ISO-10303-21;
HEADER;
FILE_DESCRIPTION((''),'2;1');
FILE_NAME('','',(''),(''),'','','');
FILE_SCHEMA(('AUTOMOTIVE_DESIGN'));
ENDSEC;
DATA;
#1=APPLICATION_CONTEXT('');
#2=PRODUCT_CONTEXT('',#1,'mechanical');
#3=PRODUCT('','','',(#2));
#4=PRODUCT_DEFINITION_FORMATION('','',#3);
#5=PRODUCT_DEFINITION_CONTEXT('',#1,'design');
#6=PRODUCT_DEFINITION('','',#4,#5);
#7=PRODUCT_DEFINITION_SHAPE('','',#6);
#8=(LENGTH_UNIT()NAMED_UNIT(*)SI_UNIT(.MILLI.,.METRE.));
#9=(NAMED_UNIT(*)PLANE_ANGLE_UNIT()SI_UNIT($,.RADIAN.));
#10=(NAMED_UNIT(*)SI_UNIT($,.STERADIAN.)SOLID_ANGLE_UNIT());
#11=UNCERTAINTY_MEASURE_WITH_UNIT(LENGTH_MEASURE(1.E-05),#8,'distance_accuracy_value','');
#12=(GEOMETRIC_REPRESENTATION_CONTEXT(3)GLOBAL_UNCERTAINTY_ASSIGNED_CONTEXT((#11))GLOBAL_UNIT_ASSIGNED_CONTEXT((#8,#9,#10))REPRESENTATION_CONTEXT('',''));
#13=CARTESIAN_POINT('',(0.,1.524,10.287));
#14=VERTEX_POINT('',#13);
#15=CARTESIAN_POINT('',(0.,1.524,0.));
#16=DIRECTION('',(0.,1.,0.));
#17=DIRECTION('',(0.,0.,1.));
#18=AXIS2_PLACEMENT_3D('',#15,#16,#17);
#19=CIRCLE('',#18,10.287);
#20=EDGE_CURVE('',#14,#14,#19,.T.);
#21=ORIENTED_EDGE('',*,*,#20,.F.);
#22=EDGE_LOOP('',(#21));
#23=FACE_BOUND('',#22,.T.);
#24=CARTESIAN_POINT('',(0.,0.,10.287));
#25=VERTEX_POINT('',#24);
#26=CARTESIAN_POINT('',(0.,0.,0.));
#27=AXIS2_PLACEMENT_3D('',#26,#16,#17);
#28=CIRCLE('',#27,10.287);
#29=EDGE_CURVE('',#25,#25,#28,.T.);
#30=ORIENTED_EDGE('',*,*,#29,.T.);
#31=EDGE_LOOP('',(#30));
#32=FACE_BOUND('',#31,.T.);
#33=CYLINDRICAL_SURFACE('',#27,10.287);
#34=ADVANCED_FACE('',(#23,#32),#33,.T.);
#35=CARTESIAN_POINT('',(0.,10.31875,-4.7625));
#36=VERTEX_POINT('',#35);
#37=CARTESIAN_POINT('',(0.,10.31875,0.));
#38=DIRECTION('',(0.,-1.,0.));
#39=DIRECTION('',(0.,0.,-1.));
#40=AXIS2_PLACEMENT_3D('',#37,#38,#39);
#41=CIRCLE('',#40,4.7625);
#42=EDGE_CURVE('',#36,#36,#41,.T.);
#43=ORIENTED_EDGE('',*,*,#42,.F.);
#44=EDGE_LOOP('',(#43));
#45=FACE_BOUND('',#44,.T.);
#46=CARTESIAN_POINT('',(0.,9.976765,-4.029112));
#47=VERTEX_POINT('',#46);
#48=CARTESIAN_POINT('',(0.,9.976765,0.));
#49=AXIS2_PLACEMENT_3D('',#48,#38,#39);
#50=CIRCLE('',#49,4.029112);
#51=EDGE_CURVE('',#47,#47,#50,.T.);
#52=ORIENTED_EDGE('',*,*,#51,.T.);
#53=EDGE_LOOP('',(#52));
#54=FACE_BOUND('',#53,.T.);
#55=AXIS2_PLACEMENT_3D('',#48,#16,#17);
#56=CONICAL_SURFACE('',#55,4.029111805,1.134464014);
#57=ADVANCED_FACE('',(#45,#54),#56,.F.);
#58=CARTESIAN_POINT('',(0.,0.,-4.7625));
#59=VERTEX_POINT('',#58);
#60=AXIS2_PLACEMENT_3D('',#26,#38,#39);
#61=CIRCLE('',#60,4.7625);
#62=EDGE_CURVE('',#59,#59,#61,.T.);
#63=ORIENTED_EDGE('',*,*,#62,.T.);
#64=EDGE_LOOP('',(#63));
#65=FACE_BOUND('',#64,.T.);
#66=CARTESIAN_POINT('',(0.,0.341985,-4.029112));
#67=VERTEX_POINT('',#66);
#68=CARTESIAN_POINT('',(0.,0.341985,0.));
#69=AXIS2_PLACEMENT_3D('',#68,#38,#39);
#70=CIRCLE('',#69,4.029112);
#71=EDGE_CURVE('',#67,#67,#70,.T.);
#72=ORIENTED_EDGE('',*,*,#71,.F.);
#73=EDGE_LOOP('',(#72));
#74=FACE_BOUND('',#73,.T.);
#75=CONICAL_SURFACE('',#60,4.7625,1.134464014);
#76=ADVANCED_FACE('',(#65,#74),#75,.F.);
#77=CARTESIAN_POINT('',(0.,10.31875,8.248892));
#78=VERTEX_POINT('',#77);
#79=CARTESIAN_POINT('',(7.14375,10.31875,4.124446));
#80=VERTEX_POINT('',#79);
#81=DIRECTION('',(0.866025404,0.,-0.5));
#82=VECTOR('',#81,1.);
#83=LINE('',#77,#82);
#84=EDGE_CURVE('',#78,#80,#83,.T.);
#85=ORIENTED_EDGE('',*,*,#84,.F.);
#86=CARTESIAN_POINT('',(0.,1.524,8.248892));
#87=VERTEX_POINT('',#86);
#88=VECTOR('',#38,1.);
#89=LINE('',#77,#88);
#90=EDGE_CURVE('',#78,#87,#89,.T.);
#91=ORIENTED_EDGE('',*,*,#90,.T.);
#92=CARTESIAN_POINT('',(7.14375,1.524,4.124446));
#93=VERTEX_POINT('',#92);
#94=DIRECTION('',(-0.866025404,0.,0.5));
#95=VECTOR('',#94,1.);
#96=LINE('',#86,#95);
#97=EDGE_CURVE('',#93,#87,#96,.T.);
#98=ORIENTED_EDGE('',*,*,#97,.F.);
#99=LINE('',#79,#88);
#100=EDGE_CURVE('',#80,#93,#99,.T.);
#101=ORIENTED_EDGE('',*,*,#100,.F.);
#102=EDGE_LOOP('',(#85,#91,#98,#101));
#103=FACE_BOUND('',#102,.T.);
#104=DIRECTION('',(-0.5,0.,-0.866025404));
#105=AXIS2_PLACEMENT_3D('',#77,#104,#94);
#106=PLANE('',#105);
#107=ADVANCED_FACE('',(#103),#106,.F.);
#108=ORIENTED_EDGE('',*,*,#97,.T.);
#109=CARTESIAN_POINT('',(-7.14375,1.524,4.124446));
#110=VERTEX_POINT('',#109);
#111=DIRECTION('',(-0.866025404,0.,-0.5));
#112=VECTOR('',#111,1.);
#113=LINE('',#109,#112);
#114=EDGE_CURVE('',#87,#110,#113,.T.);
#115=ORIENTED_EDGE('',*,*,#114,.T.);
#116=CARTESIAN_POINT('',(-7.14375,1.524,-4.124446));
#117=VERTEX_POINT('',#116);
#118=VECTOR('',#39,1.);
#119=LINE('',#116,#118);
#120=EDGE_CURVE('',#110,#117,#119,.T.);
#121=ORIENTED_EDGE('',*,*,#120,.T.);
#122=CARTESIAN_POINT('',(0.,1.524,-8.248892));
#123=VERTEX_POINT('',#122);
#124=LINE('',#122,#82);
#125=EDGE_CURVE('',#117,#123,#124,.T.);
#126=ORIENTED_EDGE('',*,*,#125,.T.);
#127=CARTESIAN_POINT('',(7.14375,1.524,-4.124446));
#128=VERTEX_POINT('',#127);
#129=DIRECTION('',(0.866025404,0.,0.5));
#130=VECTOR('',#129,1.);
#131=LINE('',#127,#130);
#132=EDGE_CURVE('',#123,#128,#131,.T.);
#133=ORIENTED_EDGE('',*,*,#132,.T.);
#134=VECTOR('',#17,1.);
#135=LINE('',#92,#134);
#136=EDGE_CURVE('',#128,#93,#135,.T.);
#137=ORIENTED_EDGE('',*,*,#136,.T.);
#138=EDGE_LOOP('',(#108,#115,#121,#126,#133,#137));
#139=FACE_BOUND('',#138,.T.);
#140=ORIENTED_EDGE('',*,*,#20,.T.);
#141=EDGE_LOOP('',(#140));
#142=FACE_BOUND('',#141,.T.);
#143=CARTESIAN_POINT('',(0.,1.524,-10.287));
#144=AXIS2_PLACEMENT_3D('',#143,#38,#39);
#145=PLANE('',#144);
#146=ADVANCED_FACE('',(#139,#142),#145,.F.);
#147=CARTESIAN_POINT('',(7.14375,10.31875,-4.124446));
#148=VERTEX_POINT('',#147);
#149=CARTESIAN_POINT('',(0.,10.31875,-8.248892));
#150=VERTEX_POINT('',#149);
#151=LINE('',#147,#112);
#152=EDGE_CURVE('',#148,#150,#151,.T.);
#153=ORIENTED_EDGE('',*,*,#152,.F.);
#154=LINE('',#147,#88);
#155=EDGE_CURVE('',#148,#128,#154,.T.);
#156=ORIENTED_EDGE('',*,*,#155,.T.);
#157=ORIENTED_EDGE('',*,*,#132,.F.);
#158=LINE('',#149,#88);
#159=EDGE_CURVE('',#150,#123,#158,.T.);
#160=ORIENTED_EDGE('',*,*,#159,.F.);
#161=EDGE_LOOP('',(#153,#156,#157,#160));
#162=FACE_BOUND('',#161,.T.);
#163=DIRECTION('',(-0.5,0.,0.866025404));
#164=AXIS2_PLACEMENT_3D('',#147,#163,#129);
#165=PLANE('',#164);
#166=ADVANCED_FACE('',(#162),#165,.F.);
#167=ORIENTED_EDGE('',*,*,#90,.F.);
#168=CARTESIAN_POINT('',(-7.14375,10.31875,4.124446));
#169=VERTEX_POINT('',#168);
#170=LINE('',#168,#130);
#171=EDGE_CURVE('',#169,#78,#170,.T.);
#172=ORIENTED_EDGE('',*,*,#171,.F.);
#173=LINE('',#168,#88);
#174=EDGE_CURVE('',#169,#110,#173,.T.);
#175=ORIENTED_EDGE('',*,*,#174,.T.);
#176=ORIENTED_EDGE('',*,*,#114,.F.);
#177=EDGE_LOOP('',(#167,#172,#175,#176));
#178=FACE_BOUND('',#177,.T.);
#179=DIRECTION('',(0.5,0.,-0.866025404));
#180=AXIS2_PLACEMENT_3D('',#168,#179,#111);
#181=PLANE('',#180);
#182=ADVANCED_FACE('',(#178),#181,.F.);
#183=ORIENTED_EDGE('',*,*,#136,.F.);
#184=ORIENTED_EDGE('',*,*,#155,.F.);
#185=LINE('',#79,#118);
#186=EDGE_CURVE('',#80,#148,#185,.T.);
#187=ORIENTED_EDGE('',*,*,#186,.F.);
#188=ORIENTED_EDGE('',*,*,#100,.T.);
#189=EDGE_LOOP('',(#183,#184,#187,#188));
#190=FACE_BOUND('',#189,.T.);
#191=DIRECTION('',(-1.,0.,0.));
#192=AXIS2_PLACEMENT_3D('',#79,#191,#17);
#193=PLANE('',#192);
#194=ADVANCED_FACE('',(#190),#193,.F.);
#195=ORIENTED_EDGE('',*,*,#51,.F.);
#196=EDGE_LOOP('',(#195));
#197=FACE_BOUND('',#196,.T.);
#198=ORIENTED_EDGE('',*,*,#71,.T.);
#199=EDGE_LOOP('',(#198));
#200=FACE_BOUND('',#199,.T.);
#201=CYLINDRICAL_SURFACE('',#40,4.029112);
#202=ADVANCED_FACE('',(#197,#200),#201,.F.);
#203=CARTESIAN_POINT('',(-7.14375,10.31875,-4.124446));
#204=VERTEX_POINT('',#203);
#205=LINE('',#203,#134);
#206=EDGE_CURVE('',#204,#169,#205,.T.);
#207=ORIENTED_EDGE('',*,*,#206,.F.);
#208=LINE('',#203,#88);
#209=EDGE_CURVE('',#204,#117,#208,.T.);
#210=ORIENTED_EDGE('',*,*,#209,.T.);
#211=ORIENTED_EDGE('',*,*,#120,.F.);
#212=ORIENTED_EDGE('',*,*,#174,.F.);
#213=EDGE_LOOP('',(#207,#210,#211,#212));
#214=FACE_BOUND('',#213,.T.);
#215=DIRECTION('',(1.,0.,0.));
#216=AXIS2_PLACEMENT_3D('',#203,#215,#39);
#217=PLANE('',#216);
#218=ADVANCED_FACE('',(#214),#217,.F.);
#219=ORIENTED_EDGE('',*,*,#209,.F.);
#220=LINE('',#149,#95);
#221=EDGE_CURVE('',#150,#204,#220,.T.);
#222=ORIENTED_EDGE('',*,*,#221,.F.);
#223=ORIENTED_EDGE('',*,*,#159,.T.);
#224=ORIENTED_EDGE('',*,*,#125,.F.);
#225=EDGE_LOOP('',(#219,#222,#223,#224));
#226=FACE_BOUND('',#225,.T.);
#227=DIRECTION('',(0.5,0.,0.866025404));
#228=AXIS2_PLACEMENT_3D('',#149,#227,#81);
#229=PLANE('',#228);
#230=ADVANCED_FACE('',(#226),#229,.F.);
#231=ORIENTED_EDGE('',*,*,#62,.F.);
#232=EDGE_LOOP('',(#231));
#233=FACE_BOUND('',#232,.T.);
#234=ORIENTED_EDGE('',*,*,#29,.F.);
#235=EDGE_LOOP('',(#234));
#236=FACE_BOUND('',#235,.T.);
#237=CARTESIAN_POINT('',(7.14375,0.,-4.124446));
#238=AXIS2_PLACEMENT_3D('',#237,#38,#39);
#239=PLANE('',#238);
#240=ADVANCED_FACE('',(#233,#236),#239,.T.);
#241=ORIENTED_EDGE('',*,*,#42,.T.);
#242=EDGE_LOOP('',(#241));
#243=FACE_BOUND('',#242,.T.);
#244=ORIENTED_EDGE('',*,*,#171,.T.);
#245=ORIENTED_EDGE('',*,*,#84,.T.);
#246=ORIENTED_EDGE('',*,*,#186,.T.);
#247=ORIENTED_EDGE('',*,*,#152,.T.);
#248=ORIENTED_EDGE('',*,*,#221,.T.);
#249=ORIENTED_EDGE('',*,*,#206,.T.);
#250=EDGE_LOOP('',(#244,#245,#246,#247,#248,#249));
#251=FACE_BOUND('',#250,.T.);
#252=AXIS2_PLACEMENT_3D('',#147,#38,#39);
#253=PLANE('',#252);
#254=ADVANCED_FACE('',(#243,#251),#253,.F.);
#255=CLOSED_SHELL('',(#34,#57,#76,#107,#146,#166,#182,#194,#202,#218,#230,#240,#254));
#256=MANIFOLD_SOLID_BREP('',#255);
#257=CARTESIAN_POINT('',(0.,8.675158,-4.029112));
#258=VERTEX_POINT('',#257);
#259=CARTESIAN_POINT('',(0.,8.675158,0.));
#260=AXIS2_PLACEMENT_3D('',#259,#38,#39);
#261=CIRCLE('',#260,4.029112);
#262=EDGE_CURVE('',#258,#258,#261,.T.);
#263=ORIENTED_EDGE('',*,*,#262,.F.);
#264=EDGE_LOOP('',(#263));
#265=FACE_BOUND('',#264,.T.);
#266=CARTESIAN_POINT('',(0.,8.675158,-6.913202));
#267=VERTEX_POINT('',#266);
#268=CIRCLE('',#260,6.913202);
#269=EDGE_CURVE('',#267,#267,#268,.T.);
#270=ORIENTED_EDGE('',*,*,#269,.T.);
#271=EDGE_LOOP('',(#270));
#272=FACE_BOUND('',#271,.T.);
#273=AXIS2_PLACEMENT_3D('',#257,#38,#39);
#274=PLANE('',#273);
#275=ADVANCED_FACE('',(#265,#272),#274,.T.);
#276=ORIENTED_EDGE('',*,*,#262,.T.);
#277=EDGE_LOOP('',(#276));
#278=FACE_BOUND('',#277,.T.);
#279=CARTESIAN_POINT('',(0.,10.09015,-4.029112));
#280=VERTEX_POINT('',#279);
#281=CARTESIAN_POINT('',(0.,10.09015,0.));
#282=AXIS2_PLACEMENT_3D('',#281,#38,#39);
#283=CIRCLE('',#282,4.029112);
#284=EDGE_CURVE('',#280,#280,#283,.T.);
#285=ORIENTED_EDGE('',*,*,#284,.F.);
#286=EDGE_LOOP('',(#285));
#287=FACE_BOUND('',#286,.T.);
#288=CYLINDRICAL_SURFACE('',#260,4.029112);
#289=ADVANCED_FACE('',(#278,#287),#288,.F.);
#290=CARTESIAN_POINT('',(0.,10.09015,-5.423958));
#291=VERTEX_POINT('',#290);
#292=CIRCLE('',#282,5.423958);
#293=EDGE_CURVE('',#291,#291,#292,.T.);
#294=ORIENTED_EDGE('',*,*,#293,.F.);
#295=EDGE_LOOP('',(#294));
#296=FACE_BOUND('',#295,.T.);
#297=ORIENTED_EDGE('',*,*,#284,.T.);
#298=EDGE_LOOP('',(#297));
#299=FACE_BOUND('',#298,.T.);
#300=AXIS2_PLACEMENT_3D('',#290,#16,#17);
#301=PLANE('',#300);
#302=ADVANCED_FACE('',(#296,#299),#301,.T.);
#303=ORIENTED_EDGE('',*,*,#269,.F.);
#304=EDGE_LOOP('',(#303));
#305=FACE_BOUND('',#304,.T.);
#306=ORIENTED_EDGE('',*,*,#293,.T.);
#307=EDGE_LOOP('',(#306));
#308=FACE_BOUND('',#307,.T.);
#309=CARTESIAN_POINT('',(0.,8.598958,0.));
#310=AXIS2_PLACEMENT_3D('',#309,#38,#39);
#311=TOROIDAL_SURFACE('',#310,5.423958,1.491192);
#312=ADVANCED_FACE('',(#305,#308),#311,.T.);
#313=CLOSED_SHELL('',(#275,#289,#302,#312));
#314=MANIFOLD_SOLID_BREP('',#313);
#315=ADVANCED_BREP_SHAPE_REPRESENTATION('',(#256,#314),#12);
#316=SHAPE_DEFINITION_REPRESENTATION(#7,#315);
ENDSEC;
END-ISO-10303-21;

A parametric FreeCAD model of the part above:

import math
import FreeCAD as App
import Part
import Sketcher
Q = App.Units.Quantity


def add_polygon(sketch, points):
    """Adds a closed chain of lines whose ends are joined by coincident constraints."""
    first, n = sketch.GeometryCount, len(points)
    for a, b in zip(points, points[1:] + points[:1]):
        sketch.addGeometry(Part.LineSegment(App.Vector(*a, 0), App.Vector(*b, 0)), False)
    for i in range(n):
        sketch.addConstraint(Sketcher.Constraint("Coincident", first + i, 2, first + (i + 1) % n, 1))

doc = App.newDocument("Part")
body = doc.addObject("PartDesign::Body", "Body")

# Sketch on XZ plane
sketch1 = doc.addObject("Sketcher::SketchObject", "Sketch")
body.addObject(sketch1)
sketch1.AttachmentSupport = (doc.XZ_Plane, [""])
sketch1.MapMode = "FlatFace"
add_polygon(sketch1, [(0, -8.248892), (-7.14375, -4.124446), (-7.14375, 4.124446), (0, 8.248892), (7.14375, 4.124446), (7.14375, -4.124446)])  # lines 0-5
sketch1.addConstraint(Sketcher.Constraint("Vertical", 1))
sketch1.addConstraint(Sketcher.Constraint("Vertical", 4))
sketch1.addConstraint(Sketcher.Constraint("Symmetric", 0, 2, 3, 2, -1, 1))
sketch1.addConstraint(Sketcher.Constraint("Symmetric", 2, 2, 5, 2, -1, 1))
sketch1.addConstraint(Sketcher.Constraint("PointOnObject", 2, 2, -2))
sketch1.addConstraint(Sketcher.Constraint("Parallel", 2, 5))
sketch1.addConstraint(Sketcher.Constraint("Horizontal", 1, 2, 3, 2))
sketch1.addConstraint(Sketcher.Constraint("Angle", 0, Q("150 deg")))
sketch1.addConstraint(Sketcher.Constraint("DistanceX", 0, 2, -1, 1, Q("0.28125 in")))
sketch1.addConstraint(Sketcher.Constraint("DistanceY", 1, 1, 1, 2, Q("8.248892 mm")))
pad1 = doc.addObject("PartDesign::Pad", "Pad")
body.addObject(pad1)
pad1.Profile = sketch1
pad1.Length = Q("0.40625 in")
pad1.Reversed = True

# Sketch on YZ plane
sketch2 = doc.addObject("Sketcher::SketchObject", "Sketch001")
body.addObject(sketch2)
sketch2.AttachmentSupport = (doc.YZ_Plane, [""])
sketch2.MapMode = "FlatFace"
add_polygon(sketch2, [(1.524, 0), (0, 0), (0, -10.287), (1.524, -10.287)])  # lines 0-3
sketch2.addConstraint(Sketcher.Constraint("Horizontal", 0))
sketch2.addConstraint(Sketcher.Constraint("Vertical", 1))
sketch2.addConstraint(Sketcher.Constraint("Horizontal", 2))
sketch2.addConstraint(Sketcher.Constraint("Vertical", 3))
sketch2.addConstraint(Sketcher.Constraint("Coincident", 0, 2, -1, 1))
sketch2.addConstraint(Sketcher.Constraint("DistanceX", 0, 2, 0, 1, Q("0.06 in")))
sketch2.addConstraint(Sketcher.Constraint("DistanceY", 1, 2, 1, 1, Q("0.405 in")))
revolution = doc.addObject("PartDesign::Revolution", "Revolution")
body.addObject(revolution)
revolution.Profile = sketch2
revolution.ReferenceAxis = (sketch2, ["H_Axis"])
revolution.Angle = 360

# Sketch on YZ plane
sketch3 = doc.addObject("Sketcher::SketchObject", "Sketch002")
body.addObject(sketch3)
sketch3.AttachmentSupport = (doc.YZ_Plane, [""])
sketch3.MapMode = "FlatFace"
add_polygon(sketch3, [(10.31875, -4.7625), (10.31875, 0), (0, 0), (0, -4.7625), (0.341985, -4.029112), (9.976765, -4.029112)])  # lines 0-5
sketch3.addConstraint(Sketcher.Constraint("Vertical", 0))
sketch3.addConstraint(Sketcher.Constraint("Horizontal", 1))
sketch3.addConstraint(Sketcher.Constraint("Vertical", 2))
sketch3.addConstraint(Sketcher.Constraint("Horizontal", 4))
sketch3.addConstraint(Sketcher.Constraint("Coincident", 1, 2, -1, 1))
sketch3.addConstraint(Sketcher.Constraint("Horizontal", 2, 2, 5, 2))
sketch3.addConstraint(Sketcher.Constraint("Equal", 3, 5))
sketch3.addConstraint(Sketcher.Constraint("Angle", 3, Q("65 deg")))
sketch3.addConstraint(Sketcher.Constraint("DistanceX", 1, 2, 1, 1, Q("0.40625 in")))
sketch3.addConstraint(Sketcher.Constraint("DistanceY", 0, 1, 0, 2, Q("0.1875 in")))
sketch3.addConstraint(Sketcher.Constraint("DistanceX", 4, 1, 4, 2, Q("9.634781 mm")))
groove = doc.addObject("PartDesign::Groove", "Groove")
body.addObject(groove)
groove.Profile = sketch3
groove.ReferenceAxis = (sketch3, ["H_Axis"])
groove.Angle = 360
body2 = doc.addObject("PartDesign::Body", "Body001")

# Sketch on YZ plane
sketch4 = doc.addObject("Sketcher::SketchObject", "Sketch003")
body2.addObject(sketch4)
sketch4.AttachmentSupport = (doc.getObject("YZ_Plane001"), [""])
sketch4.MapMode = "FlatFace"
sketch4.addGeometry(Part.LineSegment(App.Vector(8.675158, -4.029112, 0), App.Vector(8.675158, -6.913202, 0)), False)
sketch4.addGeometry(Part.ArcOfCircle(Part.Circle(App.Vector(8.598958, -5.423958, 0), App.Vector(0, 0, 1), 1.491192), math.radians(-87.070906), math.radians(0)), False)
sketch4.addGeometry(Part.LineSegment(App.Vector(10.09015, -5.423958, 0), App.Vector(10.09015, -4.029112, 0)), False)
sketch4.addGeometry(Part.LineSegment(App.Vector(10.09015, -4.029112, 0), App.Vector(8.675158, -4.029112, 0)), False)
sketch4.addConstraint(Sketcher.Constraint("Coincident", 0, 2, 1, 1))
sketch4.addConstraint(Sketcher.Constraint("Tangent", 1, 2, 2, 1))
sketch4.addConstraint(Sketcher.Constraint("Coincident", 2, 2, 3, 1))
sketch4.addConstraint(Sketcher.Constraint("Coincident", 3, 2, 0, 1))
sketch4.addConstraint(Sketcher.Constraint("Vertical", 0))
sketch4.addConstraint(Sketcher.Constraint("Vertical", 2))
sketch4.addConstraint(Sketcher.Constraint("Horizontal", 3))
sketch4.addConstraint(Sketcher.Constraint("Radius", 1, Q("1.491192 mm")))
sketch4.addConstraint(Sketcher.Constraint("DistanceX", 1, 3, 0, 2, Q("0.003 in")))
sketch4.addConstraint(Sketcher.Constraint("DistanceY", 0, 2, 0, 1, Q("2.88409 mm")))
sketch4.addConstraint(Sketcher.Constraint("DistanceY", 0, 2, -1, 1, Q("6.913202 mm")))
sketch4.addConstraint(Sketcher.Constraint("DistanceX", -1, 1, 1, 3, Q("8.598958 mm")))
revolution2 = doc.addObject("PartDesign::Revolution", "Revolution001")
body2.addObject(revolution2)
revolution2.Profile = sketch4
revolution2.ReferenceAxis = (sketch4, ["H_Axis"])
revolution2.Angle = 360

doc.recompute()
